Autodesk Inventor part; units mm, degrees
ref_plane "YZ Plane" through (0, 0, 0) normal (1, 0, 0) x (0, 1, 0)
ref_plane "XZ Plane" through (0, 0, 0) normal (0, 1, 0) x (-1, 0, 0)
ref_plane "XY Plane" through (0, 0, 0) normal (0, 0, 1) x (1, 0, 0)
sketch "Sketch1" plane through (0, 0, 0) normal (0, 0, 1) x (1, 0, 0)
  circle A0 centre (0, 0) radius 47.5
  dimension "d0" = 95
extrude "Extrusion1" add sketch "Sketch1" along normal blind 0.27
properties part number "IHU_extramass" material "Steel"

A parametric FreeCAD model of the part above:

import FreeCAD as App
import Part
import Sketcher
from FreeCAD import Vector

doc = App.newDocument("Part")
body = doc.addObject("PartDesign::Body", "Body")

sketch1 = body.newObject("Sketcher::SketchObject", "Sketch")
sketch1.AttachmentSupport = (doc.getObject("XY_Plane"), [""])
sketch1.MapMode = "FlatFace"
sketch1.addGeometry(Part.Circle(Vector(0, 0, 0), Vector(0, 0, 1), 48), False)
sketch1.addConstraint(Sketcher.Constraint("Coincident", 0, 3, -1, 1))
sketch1.addConstraint(Sketcher.Constraint("Diameter", 0, 95.0))
pad1 = body.newObject("PartDesign::Pad", "Pad")
pad1.Profile = sketch1
pad1.Length = 0.27

doc.recompute()
